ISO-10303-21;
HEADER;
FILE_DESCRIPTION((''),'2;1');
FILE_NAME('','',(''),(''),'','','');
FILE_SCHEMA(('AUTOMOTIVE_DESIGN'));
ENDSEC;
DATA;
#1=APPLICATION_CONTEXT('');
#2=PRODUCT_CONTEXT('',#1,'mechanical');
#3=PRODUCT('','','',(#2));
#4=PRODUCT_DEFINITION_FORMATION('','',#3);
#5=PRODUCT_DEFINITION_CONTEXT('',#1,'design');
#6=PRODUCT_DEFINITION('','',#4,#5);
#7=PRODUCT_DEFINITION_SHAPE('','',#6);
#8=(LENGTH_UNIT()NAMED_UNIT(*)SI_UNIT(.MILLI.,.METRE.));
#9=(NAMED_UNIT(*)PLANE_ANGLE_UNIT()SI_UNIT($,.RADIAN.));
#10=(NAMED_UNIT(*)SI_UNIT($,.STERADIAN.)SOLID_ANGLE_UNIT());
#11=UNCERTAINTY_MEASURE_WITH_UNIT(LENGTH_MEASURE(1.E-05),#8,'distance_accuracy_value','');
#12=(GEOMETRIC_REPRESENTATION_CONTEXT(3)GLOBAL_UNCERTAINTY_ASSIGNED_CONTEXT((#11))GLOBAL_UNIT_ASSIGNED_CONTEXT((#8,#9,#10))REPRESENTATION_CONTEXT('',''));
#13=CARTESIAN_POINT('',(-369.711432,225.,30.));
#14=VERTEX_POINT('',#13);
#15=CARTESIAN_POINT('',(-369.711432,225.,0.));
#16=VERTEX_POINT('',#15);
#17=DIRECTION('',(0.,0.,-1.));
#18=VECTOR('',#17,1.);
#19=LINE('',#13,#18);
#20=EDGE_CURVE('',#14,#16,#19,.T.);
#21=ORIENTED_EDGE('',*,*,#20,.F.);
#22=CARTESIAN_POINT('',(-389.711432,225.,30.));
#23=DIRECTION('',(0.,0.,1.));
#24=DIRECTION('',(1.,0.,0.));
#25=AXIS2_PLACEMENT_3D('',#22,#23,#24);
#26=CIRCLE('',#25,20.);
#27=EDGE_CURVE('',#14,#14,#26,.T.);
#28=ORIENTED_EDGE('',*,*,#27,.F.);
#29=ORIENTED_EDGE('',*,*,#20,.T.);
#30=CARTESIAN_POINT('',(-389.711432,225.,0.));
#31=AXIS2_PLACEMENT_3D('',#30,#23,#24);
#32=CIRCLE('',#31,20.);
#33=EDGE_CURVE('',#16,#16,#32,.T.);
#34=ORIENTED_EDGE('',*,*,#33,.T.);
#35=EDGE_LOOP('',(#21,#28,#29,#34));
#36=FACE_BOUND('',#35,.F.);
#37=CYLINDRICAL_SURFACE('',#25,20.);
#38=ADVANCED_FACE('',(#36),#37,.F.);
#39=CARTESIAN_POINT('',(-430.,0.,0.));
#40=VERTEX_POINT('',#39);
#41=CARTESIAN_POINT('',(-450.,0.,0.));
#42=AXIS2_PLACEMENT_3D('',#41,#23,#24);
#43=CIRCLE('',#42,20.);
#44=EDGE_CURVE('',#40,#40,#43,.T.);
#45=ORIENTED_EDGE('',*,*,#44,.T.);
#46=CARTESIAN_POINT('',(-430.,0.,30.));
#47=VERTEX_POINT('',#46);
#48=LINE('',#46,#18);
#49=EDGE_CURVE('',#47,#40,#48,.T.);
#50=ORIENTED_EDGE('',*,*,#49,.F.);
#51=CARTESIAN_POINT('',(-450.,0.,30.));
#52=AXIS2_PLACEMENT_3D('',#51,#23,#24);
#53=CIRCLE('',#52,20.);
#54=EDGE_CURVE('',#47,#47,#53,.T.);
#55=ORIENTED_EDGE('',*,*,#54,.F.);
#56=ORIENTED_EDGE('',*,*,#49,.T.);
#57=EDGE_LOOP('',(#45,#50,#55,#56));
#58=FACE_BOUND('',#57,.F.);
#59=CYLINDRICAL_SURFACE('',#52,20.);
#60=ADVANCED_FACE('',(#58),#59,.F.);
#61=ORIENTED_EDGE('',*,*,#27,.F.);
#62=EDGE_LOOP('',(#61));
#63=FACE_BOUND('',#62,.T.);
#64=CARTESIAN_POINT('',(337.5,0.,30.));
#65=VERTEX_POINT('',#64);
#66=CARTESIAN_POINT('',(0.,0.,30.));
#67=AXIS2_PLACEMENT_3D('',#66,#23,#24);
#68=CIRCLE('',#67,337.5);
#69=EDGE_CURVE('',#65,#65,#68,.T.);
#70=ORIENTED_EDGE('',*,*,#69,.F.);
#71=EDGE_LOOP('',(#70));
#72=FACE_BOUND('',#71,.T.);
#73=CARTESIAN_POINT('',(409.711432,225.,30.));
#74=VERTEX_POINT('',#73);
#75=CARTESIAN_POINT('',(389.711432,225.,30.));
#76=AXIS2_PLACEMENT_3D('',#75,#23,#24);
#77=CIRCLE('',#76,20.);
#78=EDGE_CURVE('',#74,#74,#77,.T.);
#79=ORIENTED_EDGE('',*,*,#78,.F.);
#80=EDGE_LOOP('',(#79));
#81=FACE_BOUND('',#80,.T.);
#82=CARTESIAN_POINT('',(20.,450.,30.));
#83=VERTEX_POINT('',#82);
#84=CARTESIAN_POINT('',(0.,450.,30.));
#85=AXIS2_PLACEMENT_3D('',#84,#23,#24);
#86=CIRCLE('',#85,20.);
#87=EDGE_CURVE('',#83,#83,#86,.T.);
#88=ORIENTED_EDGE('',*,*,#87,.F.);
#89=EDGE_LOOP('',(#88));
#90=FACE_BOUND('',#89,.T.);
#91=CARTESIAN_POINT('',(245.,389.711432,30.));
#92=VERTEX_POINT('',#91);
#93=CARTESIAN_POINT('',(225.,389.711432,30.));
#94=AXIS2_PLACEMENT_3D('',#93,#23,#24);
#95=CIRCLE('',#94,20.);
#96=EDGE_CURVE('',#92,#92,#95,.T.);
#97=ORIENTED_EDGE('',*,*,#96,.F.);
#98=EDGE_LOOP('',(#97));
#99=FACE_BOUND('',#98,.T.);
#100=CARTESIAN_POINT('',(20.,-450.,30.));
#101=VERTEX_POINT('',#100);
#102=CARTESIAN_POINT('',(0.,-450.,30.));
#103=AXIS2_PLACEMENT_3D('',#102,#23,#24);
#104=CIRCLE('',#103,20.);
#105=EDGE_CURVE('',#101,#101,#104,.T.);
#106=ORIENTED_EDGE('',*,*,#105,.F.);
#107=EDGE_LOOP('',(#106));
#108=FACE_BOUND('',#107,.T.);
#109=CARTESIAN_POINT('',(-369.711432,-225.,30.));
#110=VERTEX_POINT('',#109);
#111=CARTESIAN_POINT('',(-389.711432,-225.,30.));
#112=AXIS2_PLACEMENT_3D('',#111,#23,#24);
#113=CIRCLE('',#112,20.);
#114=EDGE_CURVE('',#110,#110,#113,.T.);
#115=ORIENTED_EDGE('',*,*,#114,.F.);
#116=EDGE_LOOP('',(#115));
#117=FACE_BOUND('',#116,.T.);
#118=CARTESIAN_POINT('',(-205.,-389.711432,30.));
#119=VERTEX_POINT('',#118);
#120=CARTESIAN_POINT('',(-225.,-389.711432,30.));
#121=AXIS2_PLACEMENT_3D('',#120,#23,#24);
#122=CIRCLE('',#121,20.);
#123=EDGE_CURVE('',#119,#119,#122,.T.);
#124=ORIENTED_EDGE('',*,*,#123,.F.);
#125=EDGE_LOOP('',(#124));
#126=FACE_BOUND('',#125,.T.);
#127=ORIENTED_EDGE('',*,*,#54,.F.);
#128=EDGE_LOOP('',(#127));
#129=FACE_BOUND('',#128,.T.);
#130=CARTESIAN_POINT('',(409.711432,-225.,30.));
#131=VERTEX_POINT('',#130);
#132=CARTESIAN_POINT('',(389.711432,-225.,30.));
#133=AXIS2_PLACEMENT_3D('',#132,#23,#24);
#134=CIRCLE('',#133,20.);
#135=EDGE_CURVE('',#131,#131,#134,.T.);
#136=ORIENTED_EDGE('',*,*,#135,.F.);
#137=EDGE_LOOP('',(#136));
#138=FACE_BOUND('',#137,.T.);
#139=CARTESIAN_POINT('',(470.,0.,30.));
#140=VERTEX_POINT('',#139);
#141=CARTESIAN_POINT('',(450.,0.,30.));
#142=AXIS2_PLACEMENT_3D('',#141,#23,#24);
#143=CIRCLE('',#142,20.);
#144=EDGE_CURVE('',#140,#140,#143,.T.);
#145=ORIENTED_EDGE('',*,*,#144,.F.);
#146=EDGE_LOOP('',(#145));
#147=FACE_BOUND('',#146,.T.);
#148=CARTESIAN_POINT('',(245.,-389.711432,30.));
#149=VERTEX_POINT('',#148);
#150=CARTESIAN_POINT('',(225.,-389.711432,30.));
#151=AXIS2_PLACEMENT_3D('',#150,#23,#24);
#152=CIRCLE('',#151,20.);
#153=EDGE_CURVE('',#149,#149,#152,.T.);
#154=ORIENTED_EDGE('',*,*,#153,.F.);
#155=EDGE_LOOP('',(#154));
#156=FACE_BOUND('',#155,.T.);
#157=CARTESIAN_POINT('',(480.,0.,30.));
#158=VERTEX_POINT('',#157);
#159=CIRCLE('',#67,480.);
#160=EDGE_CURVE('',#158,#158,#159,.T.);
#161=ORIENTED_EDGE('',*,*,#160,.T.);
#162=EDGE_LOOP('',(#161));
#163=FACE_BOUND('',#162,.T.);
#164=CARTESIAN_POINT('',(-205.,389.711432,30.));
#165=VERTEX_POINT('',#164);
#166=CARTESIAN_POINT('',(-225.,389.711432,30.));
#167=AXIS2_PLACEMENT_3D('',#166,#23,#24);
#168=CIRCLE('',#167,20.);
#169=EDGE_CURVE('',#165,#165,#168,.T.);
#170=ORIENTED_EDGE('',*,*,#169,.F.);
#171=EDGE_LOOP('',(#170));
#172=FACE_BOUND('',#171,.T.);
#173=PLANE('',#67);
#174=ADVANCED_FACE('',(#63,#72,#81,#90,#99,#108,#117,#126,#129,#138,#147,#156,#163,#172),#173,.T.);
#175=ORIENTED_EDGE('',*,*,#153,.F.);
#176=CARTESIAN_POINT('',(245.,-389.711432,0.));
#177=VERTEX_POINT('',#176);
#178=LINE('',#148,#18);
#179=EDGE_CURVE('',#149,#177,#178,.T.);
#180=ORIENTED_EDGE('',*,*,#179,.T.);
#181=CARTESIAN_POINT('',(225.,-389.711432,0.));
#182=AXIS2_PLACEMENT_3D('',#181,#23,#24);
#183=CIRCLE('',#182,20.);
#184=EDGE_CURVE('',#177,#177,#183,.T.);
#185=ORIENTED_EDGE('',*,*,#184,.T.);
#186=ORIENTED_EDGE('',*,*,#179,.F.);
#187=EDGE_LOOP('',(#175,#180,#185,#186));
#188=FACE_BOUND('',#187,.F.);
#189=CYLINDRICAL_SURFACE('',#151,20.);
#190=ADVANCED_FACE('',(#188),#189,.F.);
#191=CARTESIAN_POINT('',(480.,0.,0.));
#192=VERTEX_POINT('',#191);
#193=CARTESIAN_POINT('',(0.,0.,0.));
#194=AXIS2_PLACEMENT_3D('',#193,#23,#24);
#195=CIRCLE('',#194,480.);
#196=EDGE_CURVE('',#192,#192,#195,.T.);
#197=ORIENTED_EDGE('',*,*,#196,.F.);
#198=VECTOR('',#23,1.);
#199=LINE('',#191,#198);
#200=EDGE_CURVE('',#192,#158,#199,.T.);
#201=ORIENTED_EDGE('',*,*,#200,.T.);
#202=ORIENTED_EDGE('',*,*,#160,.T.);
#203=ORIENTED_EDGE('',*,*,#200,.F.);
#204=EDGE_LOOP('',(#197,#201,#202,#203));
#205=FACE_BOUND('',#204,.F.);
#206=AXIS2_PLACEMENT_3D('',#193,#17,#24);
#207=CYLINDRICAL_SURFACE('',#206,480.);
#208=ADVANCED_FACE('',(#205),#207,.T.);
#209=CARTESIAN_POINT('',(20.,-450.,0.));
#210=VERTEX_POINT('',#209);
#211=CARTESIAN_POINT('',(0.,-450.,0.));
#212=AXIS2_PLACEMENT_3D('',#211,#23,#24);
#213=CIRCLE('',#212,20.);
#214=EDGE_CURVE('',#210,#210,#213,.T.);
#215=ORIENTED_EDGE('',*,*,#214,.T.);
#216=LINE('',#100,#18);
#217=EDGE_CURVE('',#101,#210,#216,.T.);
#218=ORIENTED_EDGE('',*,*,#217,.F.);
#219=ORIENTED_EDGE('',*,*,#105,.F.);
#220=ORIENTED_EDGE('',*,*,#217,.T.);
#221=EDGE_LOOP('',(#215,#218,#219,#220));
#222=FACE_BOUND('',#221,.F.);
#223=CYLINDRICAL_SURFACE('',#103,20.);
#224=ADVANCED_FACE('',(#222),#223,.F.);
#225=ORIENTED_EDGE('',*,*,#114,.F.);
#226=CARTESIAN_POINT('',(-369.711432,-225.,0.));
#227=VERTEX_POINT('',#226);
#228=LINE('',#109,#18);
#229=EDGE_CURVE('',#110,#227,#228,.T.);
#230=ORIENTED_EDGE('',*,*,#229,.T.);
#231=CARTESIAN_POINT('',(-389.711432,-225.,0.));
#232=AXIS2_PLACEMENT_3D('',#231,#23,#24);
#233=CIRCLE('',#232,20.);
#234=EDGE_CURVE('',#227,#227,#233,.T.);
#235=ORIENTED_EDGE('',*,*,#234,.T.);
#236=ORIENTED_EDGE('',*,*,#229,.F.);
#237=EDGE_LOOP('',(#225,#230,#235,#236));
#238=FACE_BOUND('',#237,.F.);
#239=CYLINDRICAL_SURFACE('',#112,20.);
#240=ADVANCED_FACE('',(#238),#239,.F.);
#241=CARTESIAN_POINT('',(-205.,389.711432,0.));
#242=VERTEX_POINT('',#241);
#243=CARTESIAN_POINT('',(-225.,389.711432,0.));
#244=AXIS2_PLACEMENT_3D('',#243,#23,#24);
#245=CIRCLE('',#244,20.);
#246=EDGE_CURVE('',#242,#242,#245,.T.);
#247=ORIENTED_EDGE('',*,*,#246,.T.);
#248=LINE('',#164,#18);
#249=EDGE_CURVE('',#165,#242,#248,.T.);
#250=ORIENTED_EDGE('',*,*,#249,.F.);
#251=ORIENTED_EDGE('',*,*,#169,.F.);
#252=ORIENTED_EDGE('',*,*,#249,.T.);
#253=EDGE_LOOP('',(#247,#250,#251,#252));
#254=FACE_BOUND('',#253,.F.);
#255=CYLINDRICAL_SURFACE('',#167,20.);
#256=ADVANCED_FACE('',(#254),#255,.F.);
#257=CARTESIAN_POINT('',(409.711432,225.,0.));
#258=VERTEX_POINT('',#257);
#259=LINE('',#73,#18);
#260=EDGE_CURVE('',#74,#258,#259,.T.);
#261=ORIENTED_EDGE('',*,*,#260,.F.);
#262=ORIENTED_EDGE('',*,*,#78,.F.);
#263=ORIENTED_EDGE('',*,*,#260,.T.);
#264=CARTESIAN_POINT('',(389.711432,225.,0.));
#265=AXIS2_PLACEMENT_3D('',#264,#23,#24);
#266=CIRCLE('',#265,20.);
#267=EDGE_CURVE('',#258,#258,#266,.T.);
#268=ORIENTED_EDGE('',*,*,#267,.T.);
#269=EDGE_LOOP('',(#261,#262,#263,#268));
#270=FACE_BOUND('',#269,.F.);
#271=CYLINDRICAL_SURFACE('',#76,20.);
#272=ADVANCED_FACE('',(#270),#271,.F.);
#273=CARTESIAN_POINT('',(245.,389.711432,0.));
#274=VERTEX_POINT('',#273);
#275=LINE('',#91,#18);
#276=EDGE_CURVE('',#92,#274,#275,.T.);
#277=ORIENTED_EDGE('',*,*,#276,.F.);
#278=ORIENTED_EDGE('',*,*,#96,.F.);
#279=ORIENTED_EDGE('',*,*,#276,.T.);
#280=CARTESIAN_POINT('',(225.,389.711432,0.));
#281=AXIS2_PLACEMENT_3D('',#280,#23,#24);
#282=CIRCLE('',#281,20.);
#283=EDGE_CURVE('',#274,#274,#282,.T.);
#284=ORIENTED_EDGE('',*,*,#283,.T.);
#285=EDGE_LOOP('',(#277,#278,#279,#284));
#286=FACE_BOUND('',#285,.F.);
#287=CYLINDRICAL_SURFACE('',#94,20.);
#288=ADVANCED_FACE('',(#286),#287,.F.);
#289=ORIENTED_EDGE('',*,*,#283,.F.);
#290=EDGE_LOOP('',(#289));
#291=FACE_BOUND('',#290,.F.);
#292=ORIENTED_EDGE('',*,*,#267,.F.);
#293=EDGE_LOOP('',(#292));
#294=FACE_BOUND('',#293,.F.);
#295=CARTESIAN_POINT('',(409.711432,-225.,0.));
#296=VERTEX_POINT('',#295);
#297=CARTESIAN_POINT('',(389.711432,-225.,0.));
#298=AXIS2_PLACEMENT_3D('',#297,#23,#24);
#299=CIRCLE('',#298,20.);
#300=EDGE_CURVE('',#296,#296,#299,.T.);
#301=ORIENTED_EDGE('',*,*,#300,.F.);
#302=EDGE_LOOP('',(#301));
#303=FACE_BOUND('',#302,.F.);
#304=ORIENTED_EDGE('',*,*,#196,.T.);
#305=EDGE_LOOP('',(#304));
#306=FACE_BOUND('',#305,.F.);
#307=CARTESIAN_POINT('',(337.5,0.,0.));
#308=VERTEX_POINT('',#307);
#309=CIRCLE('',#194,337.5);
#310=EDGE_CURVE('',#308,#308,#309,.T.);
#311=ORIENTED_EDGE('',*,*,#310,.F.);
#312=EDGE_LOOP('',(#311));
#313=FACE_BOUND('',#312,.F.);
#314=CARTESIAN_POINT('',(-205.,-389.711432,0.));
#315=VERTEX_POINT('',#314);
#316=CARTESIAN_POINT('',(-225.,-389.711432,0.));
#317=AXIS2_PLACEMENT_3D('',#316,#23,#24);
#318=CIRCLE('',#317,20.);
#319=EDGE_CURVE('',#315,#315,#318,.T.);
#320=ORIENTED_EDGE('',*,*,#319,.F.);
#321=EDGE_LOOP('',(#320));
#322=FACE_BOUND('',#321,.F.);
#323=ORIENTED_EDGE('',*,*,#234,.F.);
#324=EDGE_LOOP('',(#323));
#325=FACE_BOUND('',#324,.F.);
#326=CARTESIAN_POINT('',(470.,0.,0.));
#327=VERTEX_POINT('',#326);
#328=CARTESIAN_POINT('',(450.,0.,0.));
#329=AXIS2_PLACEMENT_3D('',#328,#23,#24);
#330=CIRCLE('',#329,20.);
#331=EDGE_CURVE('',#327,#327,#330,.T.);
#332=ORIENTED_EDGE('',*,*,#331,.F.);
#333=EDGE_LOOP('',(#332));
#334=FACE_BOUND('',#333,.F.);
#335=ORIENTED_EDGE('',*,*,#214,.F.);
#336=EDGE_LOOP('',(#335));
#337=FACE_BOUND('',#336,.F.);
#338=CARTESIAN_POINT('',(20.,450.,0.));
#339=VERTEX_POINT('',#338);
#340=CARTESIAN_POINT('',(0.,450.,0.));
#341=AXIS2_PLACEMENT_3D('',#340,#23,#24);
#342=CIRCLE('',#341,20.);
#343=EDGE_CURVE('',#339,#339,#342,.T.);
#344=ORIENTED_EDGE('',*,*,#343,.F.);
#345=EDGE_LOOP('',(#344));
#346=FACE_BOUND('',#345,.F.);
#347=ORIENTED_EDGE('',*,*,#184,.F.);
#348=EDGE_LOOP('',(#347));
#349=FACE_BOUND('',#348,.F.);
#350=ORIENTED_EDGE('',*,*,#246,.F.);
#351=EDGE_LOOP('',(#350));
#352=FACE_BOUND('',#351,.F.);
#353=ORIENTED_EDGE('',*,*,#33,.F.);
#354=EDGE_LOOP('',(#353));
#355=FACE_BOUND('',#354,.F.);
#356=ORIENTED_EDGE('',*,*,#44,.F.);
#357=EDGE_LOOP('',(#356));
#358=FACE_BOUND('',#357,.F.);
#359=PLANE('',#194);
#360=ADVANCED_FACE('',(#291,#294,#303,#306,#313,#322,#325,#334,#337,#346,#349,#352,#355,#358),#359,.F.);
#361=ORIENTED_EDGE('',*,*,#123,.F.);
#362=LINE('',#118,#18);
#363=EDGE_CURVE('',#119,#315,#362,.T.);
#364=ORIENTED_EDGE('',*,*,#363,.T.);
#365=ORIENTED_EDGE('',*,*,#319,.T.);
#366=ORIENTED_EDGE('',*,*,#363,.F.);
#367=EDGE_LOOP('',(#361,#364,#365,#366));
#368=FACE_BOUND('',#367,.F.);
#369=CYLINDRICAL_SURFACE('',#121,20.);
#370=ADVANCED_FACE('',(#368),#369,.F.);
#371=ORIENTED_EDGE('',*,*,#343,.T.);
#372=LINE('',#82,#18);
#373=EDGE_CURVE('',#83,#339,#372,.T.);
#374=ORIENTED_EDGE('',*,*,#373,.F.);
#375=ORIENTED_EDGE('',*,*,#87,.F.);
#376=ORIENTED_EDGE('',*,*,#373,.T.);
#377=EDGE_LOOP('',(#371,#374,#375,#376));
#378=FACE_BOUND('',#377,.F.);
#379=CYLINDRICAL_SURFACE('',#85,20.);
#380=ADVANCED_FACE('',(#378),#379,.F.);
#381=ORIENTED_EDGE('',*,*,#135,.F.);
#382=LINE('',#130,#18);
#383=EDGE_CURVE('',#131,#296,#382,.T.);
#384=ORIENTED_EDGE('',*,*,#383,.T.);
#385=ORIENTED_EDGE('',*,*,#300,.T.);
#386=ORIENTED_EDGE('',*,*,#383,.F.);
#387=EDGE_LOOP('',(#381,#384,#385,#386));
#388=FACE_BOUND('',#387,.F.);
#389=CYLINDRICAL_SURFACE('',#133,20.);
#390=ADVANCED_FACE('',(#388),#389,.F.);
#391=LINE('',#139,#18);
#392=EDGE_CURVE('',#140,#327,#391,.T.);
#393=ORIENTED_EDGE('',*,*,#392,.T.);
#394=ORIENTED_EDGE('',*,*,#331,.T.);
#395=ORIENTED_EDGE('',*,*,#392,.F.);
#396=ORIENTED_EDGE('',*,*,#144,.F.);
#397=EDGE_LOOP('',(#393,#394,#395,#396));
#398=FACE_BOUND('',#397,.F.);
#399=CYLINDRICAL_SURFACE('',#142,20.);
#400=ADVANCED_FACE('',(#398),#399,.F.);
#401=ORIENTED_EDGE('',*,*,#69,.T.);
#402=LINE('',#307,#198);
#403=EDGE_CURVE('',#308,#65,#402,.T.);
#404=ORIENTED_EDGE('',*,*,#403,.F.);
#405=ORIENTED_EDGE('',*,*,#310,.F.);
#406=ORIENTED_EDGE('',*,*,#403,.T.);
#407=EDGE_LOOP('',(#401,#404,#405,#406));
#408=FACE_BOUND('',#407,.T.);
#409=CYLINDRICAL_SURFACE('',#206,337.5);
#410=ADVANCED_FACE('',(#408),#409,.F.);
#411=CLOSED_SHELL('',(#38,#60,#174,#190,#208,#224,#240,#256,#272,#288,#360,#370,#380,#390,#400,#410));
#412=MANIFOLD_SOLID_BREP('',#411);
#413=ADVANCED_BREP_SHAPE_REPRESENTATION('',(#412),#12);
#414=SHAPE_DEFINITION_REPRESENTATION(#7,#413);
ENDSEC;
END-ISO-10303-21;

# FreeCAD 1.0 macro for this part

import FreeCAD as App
import Part
import Sketcher

doc = App.newDocument("Part")
params = doc.addObject("Spreadsheet::Sheet", "Params")
for row, (alias, value) in enumerate([
    ("sketch1_diameter", "960 mm"),
    ("sketch1_diameter2", "675 mm"),
    ("pad1_length", "30 mm"),
    ("sketch2_diameter", "40 mm"),
], start=1):
    params.set(f"A{row}", alias)
    params.set(f"B{row}", "=" + value)
    params.setAlias(f"B{row}", alias)

body = doc.addObject("PartDesign::Body", "Body")

sketch1 = doc.addObject("Sketcher::SketchObject", "Sketch")
body.addObject(sketch1)
sketch1.AttachmentSupport = (doc.XY_Plane, [""])
sketch1.MapMode = "FlatFace"
sketch1.addGeometry([
    Part.Circle(App.Vector(0, 0, 0), App.Vector(0, 0, 1), 480),
    Part.Circle(App.Vector(0, 0, 0), App.Vector(0, 0, 1), 337.5),
], False)
sketch1.addConstraint([
    Sketcher.Constraint("Coincident", 0, 3, -1, 1),
    Sketcher.Constraint("Coincident", 1, 3, -1, 1),
    Sketcher.Constraint("Diameter", 0, 960.0),
    Sketcher.Constraint("Diameter", 1, 675.0),
])
sketch1.setExpression("Constraints[2]", "Params.sketch1_diameter")
sketch1.setExpression("Constraints[3]", "Params.sketch1_diameter2")
pad1 = doc.addObject("PartDesign::Pad", "Pad")
body.addObject(pad1)
pad1.Profile = sketch1
pad1.setExpression("Length", "Params.pad1_length")

sketch2 = doc.addObject("Sketcher::SketchObject", "Sketch001")
body.addObject(sketch2)
sketch2.AttachmentSupport = (doc.XY_Plane, [""])
sketch2.MapMode = "FlatFace"
sketch2.AttachmentOffset = App.Placement(App.Vector(0, 0, 30), App.Rotation())
sketch2.addGeometry([
    Part.Circle(App.Vector(-389.711432, 225, 0), App.Vector(0, 0, 1), 20),
    Part.Circle(App.Vector(-450, 0, 0), App.Vector(0, 0, 1), 20),
    Part.Circle(App.Vector(-389.711432, -225, 0), App.Vector(0, 0, 1), 20),
    Part.Circle(App.Vector(-225, -389.711432, 0), App.Vector(0, 0, 1), 20),
    Part.Circle(App.Vector(0, -450, 0), App.Vector(0, 0, 1), 20),
    Part.Circle(App.Vector(225, -389.711432, 0), App.Vector(0, 0, 1), 20),
    Part.Circle(App.Vector(389.711432, -225, 0), App.Vector(0, 0, 1), 20),
    Part.Circle(App.Vector(450, 0, 0), App.Vector(0, 0, 1), 20),
    Part.Circle(App.Vector(389.711432, 225, 0), App.Vector(0, 0, 1), 20),
    Part.Circle(App.Vector(225, 389.711432, 0), App.Vector(0, 0, 1), 20),
    Part.Circle(App.Vector(0, 450, 0), App.Vector(0, 0, 1), 20),
    Part.Circle(App.Vector(-225, 389.711432, 0), App.Vector(0, 0, 1), 20),
], False)
sketch2.addConstraint([
    Sketcher.Constraint("Equal", 0, 1),
    Sketcher.Constraint("Equal", 1, 2),
    Sketcher.Constraint("Equal", 2, 3),
    Sketcher.Constraint("Equal", 3, 4),
    Sketcher.Constraint("Equal", 4, 5),
    Sketcher.Constraint("Equal", 5, 6),
    Sketcher.Constraint("Equal", 6, 7),
    Sketcher.Constraint("Equal", 7, 8),
    Sketcher.Constraint("Equal", 8, 9),
    Sketcher.Constraint("Equal", 9, 10),
    Sketcher.Constraint("Equal", 10, 11),
    Sketcher.Constraint("Symmetric", 0, 3, 6, 3, -1, 1),
    Sketcher.Constraint("Symmetric", 1, 3, 7, 3, -1, 1),
    Sketcher.Constraint("Symmetric", 2, 3, 8, 3, -1, 1),
    Sketcher.Constraint("Symmetric", 3, 3, 9, 3, -1, 1),
    Sketcher.Constraint("Symmetric", 4, 3, 10, 3, -1, 1),
    Sketcher.Constraint("Symmetric", 5, 3, 11, 3, -1, 1),
    Sketcher.Constraint("Symmetric", 3, 3, 5, 3, -2),
    Sketcher.Constraint("Symmetric", 2, 3, 6, 3, -2),
    Sketcher.Constraint("PointOnObject", 1, 3, -1),
    Sketcher.Constraint("PointOnObject", 4, 3, -2),
    Sketcher.Constraint("Diameter", 0, 40.0),
    Sketcher.Constraint("DistanceY", -1, 1, 0, 3, 225.0),
    Sketcher.Constraint("DistanceX", 1, 3, -1, 1, 450.0),
    Sketcher.Constraint("DistanceX", 3, 3, -1, 1, 225.0),
    Sketcher.Constraint("DistanceY", 4, 3, -1, 1, 450.0),
    Sketcher.Constraint("DistanceX", 0, 3, -1, 1, 389.711432),
    Sketcher.Constraint("DistanceY", 3, 3, -1, 1, 389.711432),
])
sketch2.setExpression("Constraints[21]", "Params.sketch2_diameter")
pocket1 = doc.addObject("PartDesign::Pocket", "Pocket")
body.addObject(pocket1)
pocket1.Profile = sketch2
pocket1.Type = "ThroughAll"

doc.recompute()
